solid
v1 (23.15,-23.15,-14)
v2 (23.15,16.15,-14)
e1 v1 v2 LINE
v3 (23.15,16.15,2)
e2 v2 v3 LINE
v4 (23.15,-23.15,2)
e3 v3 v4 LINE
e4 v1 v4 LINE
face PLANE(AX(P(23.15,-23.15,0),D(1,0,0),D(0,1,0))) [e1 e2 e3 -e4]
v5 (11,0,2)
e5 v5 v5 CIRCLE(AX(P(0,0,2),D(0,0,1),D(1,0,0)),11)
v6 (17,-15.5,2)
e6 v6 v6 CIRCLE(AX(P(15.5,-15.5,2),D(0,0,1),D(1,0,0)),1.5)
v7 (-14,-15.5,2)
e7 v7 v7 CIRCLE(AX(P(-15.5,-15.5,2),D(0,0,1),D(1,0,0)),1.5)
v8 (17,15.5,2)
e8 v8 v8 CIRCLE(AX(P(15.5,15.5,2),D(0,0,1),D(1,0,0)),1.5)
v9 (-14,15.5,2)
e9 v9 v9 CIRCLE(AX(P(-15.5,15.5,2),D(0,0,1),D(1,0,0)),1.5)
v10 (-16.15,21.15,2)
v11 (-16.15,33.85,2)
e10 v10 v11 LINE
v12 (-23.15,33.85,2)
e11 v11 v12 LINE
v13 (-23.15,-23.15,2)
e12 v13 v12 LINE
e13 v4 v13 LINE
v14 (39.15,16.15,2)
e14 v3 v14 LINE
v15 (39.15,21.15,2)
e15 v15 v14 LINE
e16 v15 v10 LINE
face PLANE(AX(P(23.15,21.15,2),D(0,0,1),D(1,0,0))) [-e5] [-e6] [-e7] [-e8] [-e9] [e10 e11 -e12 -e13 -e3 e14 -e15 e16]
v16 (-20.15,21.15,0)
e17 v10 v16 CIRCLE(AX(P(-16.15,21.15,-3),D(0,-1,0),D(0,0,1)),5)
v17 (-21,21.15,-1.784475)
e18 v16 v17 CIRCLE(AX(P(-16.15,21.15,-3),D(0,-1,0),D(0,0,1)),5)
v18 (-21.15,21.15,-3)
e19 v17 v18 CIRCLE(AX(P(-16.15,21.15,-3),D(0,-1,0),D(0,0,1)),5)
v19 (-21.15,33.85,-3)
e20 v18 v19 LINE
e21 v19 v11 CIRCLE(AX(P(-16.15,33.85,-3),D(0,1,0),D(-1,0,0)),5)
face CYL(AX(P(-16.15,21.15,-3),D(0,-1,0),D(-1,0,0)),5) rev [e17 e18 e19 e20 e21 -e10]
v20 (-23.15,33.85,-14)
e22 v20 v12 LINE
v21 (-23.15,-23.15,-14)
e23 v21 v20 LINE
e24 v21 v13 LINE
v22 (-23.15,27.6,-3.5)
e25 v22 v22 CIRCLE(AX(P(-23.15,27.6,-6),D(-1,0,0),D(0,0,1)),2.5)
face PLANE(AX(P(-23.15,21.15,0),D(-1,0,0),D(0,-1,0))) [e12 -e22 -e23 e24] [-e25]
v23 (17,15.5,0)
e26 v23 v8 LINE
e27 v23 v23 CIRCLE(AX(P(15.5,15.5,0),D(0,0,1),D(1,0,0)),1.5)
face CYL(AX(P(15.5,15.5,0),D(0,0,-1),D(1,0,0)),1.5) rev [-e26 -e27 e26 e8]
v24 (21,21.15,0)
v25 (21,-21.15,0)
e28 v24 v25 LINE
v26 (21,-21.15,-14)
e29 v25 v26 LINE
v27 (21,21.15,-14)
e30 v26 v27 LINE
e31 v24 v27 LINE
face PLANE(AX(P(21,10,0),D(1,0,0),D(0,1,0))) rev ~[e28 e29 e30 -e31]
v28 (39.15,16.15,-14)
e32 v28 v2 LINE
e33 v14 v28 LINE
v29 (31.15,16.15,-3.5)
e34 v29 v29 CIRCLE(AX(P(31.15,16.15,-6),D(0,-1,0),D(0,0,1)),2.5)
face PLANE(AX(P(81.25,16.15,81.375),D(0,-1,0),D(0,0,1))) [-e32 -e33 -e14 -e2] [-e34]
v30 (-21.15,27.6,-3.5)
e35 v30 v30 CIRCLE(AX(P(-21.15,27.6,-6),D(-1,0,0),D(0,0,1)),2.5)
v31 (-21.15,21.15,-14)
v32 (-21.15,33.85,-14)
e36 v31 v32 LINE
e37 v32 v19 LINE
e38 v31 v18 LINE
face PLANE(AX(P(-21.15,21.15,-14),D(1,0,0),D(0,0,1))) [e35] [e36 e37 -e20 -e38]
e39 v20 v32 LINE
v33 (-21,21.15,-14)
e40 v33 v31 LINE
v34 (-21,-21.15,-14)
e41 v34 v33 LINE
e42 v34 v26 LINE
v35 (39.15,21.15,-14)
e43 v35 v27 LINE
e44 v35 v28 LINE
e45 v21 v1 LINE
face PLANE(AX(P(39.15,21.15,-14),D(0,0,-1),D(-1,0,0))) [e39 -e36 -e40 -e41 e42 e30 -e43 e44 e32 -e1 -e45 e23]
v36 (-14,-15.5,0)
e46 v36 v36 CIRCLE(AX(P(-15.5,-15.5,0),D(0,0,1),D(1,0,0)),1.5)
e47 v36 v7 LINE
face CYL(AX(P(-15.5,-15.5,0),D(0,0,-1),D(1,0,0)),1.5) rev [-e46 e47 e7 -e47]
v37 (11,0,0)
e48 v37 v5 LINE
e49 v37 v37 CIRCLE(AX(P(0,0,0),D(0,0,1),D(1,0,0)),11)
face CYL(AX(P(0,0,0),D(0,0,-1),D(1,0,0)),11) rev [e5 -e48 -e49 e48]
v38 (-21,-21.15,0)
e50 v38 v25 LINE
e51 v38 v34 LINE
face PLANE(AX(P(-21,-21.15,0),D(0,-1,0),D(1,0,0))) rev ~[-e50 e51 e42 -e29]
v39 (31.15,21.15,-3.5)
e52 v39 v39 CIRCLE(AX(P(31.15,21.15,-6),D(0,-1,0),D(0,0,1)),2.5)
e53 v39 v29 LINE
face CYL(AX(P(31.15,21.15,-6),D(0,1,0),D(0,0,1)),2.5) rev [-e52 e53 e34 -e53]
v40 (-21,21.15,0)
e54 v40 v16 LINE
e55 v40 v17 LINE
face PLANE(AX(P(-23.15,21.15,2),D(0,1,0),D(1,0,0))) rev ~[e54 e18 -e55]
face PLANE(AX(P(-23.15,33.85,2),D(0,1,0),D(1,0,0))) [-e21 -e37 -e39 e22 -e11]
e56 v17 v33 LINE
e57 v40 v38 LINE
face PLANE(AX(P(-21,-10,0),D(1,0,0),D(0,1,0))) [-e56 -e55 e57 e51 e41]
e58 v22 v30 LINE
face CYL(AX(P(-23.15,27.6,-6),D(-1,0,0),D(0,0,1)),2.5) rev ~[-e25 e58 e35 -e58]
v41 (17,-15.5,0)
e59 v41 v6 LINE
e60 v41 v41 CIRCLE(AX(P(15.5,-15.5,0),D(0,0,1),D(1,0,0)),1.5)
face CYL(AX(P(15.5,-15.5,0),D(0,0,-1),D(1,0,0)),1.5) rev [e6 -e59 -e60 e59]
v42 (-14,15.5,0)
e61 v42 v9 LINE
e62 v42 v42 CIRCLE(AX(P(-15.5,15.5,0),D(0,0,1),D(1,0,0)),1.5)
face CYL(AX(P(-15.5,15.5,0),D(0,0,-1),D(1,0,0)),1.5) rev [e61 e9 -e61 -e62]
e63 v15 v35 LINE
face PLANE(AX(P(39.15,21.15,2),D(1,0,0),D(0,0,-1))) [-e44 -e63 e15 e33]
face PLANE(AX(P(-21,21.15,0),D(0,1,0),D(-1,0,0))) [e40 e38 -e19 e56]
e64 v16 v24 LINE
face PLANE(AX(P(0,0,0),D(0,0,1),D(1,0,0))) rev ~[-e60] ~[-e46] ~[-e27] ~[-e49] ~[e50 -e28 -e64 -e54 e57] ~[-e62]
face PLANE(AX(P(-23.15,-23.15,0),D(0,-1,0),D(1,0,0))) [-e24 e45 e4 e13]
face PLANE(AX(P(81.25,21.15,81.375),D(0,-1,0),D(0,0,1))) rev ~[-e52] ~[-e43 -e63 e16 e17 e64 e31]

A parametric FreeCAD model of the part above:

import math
import FreeCAD as App
import Part
import Sketcher
from FreeCAD import Vector

doc = App.newDocument("Part")
params = doc.addObject("Spreadsheet::Sheet", "Params")
for row, (alias, value) in enumerate([
    ("sketch1_diameter", "3 mm"),
    ("sketch1_diameter2", "22 mm"),
    ("sketch1_width", "46.3 mm"),
    ("sketch1_height", "44.3 mm"),
    ("pad1_length", "2 mm"),
    ("sketch2_width", "42 mm"),
    ("sketch2_width2", "46.3 mm"),
    ("sketch2_height", "42.3 mm"),
    ("sketch2_height2", "44.3 mm"),
    ("pad2_length", "14 mm"),
    ("sketch3_radius", "5 mm"),
    ("sketch3_width", "2 mm"),
    ("sketch3_height", "11 mm"),
    ("pad3_length", "12.7 mm"),
    ("sketch4_diameter", "5 mm"),
    ("pocket1_length", "2 mm"),
    ("sketch5_diameter", "5 mm"),
    ("sketch5_width", "16 mm"),
    ("pad4_length", "5 mm"),
], start=1):
    params.set(f"A{row}", alias)
    params.set(f"B{row}", "=" + value)
    params.setAlias(f"B{row}", alias)

body = doc.addObject("PartDesign::Body", "Body")

# Sketch on XY plane
sketch1 = body.newObject("Sketcher::SketchObject", "Sketch")
sketch1.AttachmentSupport = (doc.getObject("XY_Plane"), [""])
sketch1.MapMode = "FlatFace"
sketch1.addGeometry([
    Part.LineSegment(Vector(-23.1, 21.1, 0), Vector(-23.1, -23.1, 0)),  # 0
    Part.LineSegment(Vector(-23.1, -23.1, 0), Vector(23.1, -23.1, 0)),  # 1
    Part.LineSegment(Vector(23.1, -23.1, 0), Vector(23.1, 21.1, 0)),  # 2
    Part.LineSegment(Vector(23.1, 21.1, 0), Vector(-23.1, 21.1, 0)),  # 3
    Part.Circle(Vector(-15.5, -15.5, 0), Vector(0, 0, 1), 1.5),  # 4
    Part.Circle(Vector(15.5, -15.5, 0), Vector(0, 0, 1), 1.5),  # 5
    Part.Circle(Vector(-15.5, 15.5, 0), Vector(0, 0, 1), 1.5),  # 6
    Part.Circle(Vector(0, 0, 0), Vector(0, 0, 1), 11),  # 7
    Part.Circle(Vector(15.5, 15.5, 0), Vector(0, 0, 1), 1.5),  # 8
], False)
sketch1.addConstraint([
    Sketcher.Constraint("Coincident", 0, 2, 1, 1),
    Sketcher.Constraint("Coincident", 1, 2, 2, 1),
    Sketcher.Constraint("Coincident", 2, 2, 3, 1),
    Sketcher.Constraint("Coincident", 3, 2, 0, 1),
    Sketcher.Constraint("Vertical", 0),
    Sketcher.Constraint("Horizontal", 1),
    Sketcher.Constraint("Vertical", 2),
    Sketcher.Constraint("Horizontal", 3),
    Sketcher.Constraint("Coincident", 7, 3, -1, 1),
    Sketcher.Constraint("Equal", 4, 5),
    Sketcher.Constraint("Equal", 5, 6),
    Sketcher.Constraint("Equal", 6, 8),
    Sketcher.Constraint("Symmetric", 5, 3, 6, 3, -1, 1),
    Sketcher.Constraint("Symmetric", 4, 3, 8, 3, -1, 1),
    Sketcher.Constraint("Symmetric", 4, 3, 5, 3, -2),
    Sketcher.Constraint("Diameter", 4, 3.0),
    Sketcher.Constraint("Diameter", 7, 22.0),
    Sketcher.Constraint("DistanceX", 1, 1, 1, 2, 46.3),
    Sketcher.Constraint("DistanceY", 0, 2, 0, 1, 44.3),
    Sketcher.Constraint("DistanceX", 4, 3, 5, 3, 31.0),
    Sketcher.Constraint("DistanceY", 4, 3, 6, 3, 31.0),
    Sketcher.Constraint("DistanceX", 0, 2, -1, 1, 23.15),
    Sketcher.Constraint("DistanceY", 0, 2, -1, 1, 23.15),
])
sketch1.setExpression("Constraints[15]", "Params.sketch1_diameter")
sketch1.setExpression("Constraints[16]", "Params.sketch1_diameter2")
sketch1.setExpression("Constraints[17]", "Params.sketch1_width")
sketch1.setExpression("Constraints[18]", "Params.sketch1_height")
pad1 = body.newObject("PartDesign::Pad", "Pad")
pad1.Profile = sketch1
pad1.setExpression("Length", "Params.pad1_length")

# Sketch on XY plane
sketch2 = body.newObject("Sketcher::SketchObject", "Sketch001")
sketch2.AttachmentSupport = (doc.getObject("XY_Plane"), [""])
sketch2.MapMode = "FlatFace"
sketch2.addGeometry([
    Part.LineSegment(Vector(-21, 21.1, 0), Vector(-21, -21.1, 0)),  # 0
    Part.LineSegment(Vector(-21, -21.1, 0), Vector(21, -21.1, 0)),  # 1
    Part.LineSegment(Vector(21, -21.1, 0), Vector(21, 21.1, 0)),  # 2
    Part.LineSegment(Vector(21, 21.1, 0), Vector(23.1, 21.1, 0)),  # 3
    Part.LineSegment(Vector(23.1, 21.1, 0), Vector(23.1, -23.1, 0)),  # 4
    Part.LineSegment(Vector(23.1, -23.1, 0), Vector(-23.1, -23.1, 0)),  # 5
    Part.LineSegment(Vector(-23.1, -23.1, 0), Vector(-23.1, 21.1, 0)),  # 6
    Part.LineSegment(Vector(-23.1, 21.1, 0), Vector(-21, 21.1, 0)),  # 7
], False)
sketch2.addConstraint([
    Sketcher.Constraint("Coincident", 0, 2, 1, 1),
    Sketcher.Constraint("Coincident", 1, 2, 2, 1),
    Sketcher.Constraint("Coincident", 2, 2, 3, 1),
    Sketcher.Constraint("Coincident", 3, 2, 4, 1),
    Sketcher.Constraint("Coincident", 4, 2, 5, 1),
    Sketcher.Constraint("Coincident", 5, 2, 6, 1),
    Sketcher.Constraint("Coincident", 6, 2, 7, 1),
    Sketcher.Constraint("Coincident", 7, 2, 0, 1),
    Sketcher.Constraint("Vertical", 0),
    Sketcher.Constraint("Horizontal", 1),
    Sketcher.Constraint("Vertical", 2),
    Sketcher.Constraint("Horizontal", 3),
    Sketcher.Constraint("Vertical", 4),
    Sketcher.Constraint("Horizontal", 5),
    Sketcher.Constraint("Vertical", 6),
    Sketcher.Constraint("Horizontal", 7),
    Sketcher.Constraint("Symmetric", 0, 2, 2, 2, -1, 1),
    Sketcher.Constraint("Symmetric", 3, 2, 6, 2, -2),
    Sketcher.Constraint("DistanceX", 1, 1, 1, 2, 42.0),
    Sketcher.Constraint("DistanceX", 5, 2, 5, 1, 46.3),
    Sketcher.Constraint("DistanceY", 0, 2, 0, 1, 42.3),
    Sketcher.Constraint("DistanceY", 4, 2, 4, 1, 44.3),
])
sketch2.setExpression("Constraints[18]", "Params.sketch2_width")
sketch2.setExpression("Constraints[19]", "Params.sketch2_width2")
sketch2.setExpression("Constraints[20]", "Params.sketch2_height")
sketch2.setExpression("Constraints[21]", "Params.sketch2_height2")
pad2 = body.newObject("PartDesign::Pad", "Pad001")
pad2.Profile = sketch2
pad2.setExpression("Length", "Params.pad2_length")
pad2.Reversed = True

# Sketch on XZ plane
sketch3 = body.newObject("Sketcher::SketchObject", "Sketch002")
sketch3.AttachmentSupport = (doc.getObject("XZ_Plane"), [""])
sketch3.MapMode = "FlatFace"
sketch3.AttachmentOffset = App.Placement(Vector(0, 0, -21.15), App.Rotation())
sketch3.addGeometry([
    Part.ArcOfCircle(Part.Circle(Vector(-16.1, -3, 0), Vector(0, 0, 1), 5), math.radians(90), math.radians(180)),  # 0
    Part.LineSegment(Vector(-21.1, -3, 0), Vector(-21.1, -14, 0)),  # 1
    Part.LineSegment(Vector(-21.1, -14, 0), Vector(-23.1, -14, 0)),  # 2
    Part.LineSegment(Vector(-23.1, -14, 0), Vector(-23.1, 2, 0)),  # 3
    Part.LineSegment(Vector(-23.1, 2, 0), Vector(-16.1, 2, 0)),  # 4
], False)
sketch3.addConstraint([
    Sketcher.Constraint("Tangent", 0, 2, 1, 1),
    Sketcher.Constraint("Coincident", 1, 2, 2, 1),
    Sketcher.Constraint("Coincident", 2, 2, 3, 1),
    Sketcher.Constraint("Coincident", 3, 2, 4, 1),
    Sketcher.Constraint("Tangent", 4, 2, 0, 1),
    Sketcher.Constraint("Vertical", 1),
    Sketcher.Constraint("Horizontal", 2),
    Sketcher.Constraint("Vertical", 3),
    Sketcher.Constraint("Horizontal", 4),
    Sketcher.Constraint("Radius", 0, 5.0),
    Sketcher.Constraint("DistanceX", 2, 2, 2, 1, 2.0),
    Sketcher.Constraint("DistanceY", 1, 2, 1, 1, 11.0),
    Sketcher.Constraint("DistanceY", 0, 3, -1, 1, 3.0),
    Sketcher.Constraint("DistanceX", 0, 3, -1, 1, 16.15),
])
sketch3.setExpression("Constraints[9]", "Params.sketch3_radius")
sketch3.setExpression("Constraints[10]", "Params.sketch3_width")
sketch3.setExpression("Constraints[11]", "Params.sketch3_height")
pad3 = body.newObject("PartDesign::Pad", "Pad002")
pad3.Profile = sketch3
pad3.setExpression("Length", "Params.pad3_length")
pad3.Reversed = True

# Sketch on YZ plane
sketch4 = body.newObject("Sketcher::SketchObject", "Sketch003")
sketch4.AttachmentSupport = (doc.getObject("YZ_Plane"), [""])
sketch4.MapMode = "FlatFace"
sketch4.AttachmentOffset = App.Placement(Vector(0, 0, -23.15), App.Rotation())
sketch4.addGeometry(Part.Circle(Vector(27.6, -6, 0), Vector(0, 0, 1), 2.5), False)
sketch4.addConstraint([
    Sketcher.Constraint("Diameter", 0, 5.0),
    Sketcher.Constraint("DistanceY", 0, 3, -1, 1, 6.0),
    Sketcher.Constraint("DistanceX", -1, 1, 0, 3, 27.6),
])
sketch4.setExpression("Constraints[0]", "Params.sketch4_diameter")
pocket1 = body.newObject("PartDesign::Pocket", "Pocket")
pocket1.Profile = sketch4
pocket1.setExpression("Length", "Params.pocket1_length")
pocket1.Reversed = True

# Sketch on XZ plane
sketch5 = body.newObject("Sketcher::SketchObject", "Sketch004")
sketch5.AttachmentSupport = (doc.getObject("XZ_Plane"), [""])
sketch5.MapMode = "FlatFace"
sketch5.AttachmentOffset = App.Placement(Vector(0, 0, -21.15), App.Rotation())
sketch5.addGeometry([
    Part.LineSegment(Vector(23.1, 2, 0), Vector(23.1, -14, 0)),  # 0
    Part.LineSegment(Vector(23.1, -14, 0), Vector(39.1, -14, 0)),  # 1
    Part.LineSegment(Vector(39.1, -14, 0), Vector(39.1, 2, 0)),  # 2
    Part.LineSegment(Vector(39.1, 2, 0), Vector(23.1, 2, 0)),  # 3
    Part.Circle(Vector(31.1, -6, 0), Vector(0, 0, 1), 2.5),  # 4
], False)
sketch5.addConstraint([
    Sketcher.Constraint("Coincident", 0, 2, 1, 1),
    Sketcher.Constraint("Coincident", 1, 2, 2, 1),
    Sketcher.Constraint("Coincident", 2, 2, 3, 1),
    Sketcher.Constraint("Coincident", 3, 2, 0, 1),
    Sketcher.Constraint("Vertical", 0),
    Sketcher.Constraint("Horizontal", 1),
    Sketcher.Constraint("Vertical", 2),
    Sketcher.Constraint("Horizontal", 3),
    Sketcher.Constraint("Equal", 3, 0),
    Sketcher.Constraint("Diameter", 4, 5.0),
    Sketcher.Constraint("DistanceX", 1, 1, 1, 2, 16.0),
    Sketcher.Constraint("DistanceY", 4, 3, -1, 1, 6.0),
    Sketcher.Constraint("DistanceY", 0, 2, -1, 1, 14.0),
    Sketcher.Constraint("DistanceX", 0, 2, 4, 3, 8.0),
    Sketcher.Constraint("DistanceX", -1, 1, 4, 3, 31.15),
])
sketch5.setExpression("Constraints[9]", "Params.sketch5_diameter")
sketch5.setExpression("Constraints[10]", "Params.sketch5_width")
pad4 = body.newObject("PartDesign::Pad", "Pad003")
pad4.Profile = sketch5
pad4.setExpression("Length", "Params.pad4_length")

doc.recompute()
